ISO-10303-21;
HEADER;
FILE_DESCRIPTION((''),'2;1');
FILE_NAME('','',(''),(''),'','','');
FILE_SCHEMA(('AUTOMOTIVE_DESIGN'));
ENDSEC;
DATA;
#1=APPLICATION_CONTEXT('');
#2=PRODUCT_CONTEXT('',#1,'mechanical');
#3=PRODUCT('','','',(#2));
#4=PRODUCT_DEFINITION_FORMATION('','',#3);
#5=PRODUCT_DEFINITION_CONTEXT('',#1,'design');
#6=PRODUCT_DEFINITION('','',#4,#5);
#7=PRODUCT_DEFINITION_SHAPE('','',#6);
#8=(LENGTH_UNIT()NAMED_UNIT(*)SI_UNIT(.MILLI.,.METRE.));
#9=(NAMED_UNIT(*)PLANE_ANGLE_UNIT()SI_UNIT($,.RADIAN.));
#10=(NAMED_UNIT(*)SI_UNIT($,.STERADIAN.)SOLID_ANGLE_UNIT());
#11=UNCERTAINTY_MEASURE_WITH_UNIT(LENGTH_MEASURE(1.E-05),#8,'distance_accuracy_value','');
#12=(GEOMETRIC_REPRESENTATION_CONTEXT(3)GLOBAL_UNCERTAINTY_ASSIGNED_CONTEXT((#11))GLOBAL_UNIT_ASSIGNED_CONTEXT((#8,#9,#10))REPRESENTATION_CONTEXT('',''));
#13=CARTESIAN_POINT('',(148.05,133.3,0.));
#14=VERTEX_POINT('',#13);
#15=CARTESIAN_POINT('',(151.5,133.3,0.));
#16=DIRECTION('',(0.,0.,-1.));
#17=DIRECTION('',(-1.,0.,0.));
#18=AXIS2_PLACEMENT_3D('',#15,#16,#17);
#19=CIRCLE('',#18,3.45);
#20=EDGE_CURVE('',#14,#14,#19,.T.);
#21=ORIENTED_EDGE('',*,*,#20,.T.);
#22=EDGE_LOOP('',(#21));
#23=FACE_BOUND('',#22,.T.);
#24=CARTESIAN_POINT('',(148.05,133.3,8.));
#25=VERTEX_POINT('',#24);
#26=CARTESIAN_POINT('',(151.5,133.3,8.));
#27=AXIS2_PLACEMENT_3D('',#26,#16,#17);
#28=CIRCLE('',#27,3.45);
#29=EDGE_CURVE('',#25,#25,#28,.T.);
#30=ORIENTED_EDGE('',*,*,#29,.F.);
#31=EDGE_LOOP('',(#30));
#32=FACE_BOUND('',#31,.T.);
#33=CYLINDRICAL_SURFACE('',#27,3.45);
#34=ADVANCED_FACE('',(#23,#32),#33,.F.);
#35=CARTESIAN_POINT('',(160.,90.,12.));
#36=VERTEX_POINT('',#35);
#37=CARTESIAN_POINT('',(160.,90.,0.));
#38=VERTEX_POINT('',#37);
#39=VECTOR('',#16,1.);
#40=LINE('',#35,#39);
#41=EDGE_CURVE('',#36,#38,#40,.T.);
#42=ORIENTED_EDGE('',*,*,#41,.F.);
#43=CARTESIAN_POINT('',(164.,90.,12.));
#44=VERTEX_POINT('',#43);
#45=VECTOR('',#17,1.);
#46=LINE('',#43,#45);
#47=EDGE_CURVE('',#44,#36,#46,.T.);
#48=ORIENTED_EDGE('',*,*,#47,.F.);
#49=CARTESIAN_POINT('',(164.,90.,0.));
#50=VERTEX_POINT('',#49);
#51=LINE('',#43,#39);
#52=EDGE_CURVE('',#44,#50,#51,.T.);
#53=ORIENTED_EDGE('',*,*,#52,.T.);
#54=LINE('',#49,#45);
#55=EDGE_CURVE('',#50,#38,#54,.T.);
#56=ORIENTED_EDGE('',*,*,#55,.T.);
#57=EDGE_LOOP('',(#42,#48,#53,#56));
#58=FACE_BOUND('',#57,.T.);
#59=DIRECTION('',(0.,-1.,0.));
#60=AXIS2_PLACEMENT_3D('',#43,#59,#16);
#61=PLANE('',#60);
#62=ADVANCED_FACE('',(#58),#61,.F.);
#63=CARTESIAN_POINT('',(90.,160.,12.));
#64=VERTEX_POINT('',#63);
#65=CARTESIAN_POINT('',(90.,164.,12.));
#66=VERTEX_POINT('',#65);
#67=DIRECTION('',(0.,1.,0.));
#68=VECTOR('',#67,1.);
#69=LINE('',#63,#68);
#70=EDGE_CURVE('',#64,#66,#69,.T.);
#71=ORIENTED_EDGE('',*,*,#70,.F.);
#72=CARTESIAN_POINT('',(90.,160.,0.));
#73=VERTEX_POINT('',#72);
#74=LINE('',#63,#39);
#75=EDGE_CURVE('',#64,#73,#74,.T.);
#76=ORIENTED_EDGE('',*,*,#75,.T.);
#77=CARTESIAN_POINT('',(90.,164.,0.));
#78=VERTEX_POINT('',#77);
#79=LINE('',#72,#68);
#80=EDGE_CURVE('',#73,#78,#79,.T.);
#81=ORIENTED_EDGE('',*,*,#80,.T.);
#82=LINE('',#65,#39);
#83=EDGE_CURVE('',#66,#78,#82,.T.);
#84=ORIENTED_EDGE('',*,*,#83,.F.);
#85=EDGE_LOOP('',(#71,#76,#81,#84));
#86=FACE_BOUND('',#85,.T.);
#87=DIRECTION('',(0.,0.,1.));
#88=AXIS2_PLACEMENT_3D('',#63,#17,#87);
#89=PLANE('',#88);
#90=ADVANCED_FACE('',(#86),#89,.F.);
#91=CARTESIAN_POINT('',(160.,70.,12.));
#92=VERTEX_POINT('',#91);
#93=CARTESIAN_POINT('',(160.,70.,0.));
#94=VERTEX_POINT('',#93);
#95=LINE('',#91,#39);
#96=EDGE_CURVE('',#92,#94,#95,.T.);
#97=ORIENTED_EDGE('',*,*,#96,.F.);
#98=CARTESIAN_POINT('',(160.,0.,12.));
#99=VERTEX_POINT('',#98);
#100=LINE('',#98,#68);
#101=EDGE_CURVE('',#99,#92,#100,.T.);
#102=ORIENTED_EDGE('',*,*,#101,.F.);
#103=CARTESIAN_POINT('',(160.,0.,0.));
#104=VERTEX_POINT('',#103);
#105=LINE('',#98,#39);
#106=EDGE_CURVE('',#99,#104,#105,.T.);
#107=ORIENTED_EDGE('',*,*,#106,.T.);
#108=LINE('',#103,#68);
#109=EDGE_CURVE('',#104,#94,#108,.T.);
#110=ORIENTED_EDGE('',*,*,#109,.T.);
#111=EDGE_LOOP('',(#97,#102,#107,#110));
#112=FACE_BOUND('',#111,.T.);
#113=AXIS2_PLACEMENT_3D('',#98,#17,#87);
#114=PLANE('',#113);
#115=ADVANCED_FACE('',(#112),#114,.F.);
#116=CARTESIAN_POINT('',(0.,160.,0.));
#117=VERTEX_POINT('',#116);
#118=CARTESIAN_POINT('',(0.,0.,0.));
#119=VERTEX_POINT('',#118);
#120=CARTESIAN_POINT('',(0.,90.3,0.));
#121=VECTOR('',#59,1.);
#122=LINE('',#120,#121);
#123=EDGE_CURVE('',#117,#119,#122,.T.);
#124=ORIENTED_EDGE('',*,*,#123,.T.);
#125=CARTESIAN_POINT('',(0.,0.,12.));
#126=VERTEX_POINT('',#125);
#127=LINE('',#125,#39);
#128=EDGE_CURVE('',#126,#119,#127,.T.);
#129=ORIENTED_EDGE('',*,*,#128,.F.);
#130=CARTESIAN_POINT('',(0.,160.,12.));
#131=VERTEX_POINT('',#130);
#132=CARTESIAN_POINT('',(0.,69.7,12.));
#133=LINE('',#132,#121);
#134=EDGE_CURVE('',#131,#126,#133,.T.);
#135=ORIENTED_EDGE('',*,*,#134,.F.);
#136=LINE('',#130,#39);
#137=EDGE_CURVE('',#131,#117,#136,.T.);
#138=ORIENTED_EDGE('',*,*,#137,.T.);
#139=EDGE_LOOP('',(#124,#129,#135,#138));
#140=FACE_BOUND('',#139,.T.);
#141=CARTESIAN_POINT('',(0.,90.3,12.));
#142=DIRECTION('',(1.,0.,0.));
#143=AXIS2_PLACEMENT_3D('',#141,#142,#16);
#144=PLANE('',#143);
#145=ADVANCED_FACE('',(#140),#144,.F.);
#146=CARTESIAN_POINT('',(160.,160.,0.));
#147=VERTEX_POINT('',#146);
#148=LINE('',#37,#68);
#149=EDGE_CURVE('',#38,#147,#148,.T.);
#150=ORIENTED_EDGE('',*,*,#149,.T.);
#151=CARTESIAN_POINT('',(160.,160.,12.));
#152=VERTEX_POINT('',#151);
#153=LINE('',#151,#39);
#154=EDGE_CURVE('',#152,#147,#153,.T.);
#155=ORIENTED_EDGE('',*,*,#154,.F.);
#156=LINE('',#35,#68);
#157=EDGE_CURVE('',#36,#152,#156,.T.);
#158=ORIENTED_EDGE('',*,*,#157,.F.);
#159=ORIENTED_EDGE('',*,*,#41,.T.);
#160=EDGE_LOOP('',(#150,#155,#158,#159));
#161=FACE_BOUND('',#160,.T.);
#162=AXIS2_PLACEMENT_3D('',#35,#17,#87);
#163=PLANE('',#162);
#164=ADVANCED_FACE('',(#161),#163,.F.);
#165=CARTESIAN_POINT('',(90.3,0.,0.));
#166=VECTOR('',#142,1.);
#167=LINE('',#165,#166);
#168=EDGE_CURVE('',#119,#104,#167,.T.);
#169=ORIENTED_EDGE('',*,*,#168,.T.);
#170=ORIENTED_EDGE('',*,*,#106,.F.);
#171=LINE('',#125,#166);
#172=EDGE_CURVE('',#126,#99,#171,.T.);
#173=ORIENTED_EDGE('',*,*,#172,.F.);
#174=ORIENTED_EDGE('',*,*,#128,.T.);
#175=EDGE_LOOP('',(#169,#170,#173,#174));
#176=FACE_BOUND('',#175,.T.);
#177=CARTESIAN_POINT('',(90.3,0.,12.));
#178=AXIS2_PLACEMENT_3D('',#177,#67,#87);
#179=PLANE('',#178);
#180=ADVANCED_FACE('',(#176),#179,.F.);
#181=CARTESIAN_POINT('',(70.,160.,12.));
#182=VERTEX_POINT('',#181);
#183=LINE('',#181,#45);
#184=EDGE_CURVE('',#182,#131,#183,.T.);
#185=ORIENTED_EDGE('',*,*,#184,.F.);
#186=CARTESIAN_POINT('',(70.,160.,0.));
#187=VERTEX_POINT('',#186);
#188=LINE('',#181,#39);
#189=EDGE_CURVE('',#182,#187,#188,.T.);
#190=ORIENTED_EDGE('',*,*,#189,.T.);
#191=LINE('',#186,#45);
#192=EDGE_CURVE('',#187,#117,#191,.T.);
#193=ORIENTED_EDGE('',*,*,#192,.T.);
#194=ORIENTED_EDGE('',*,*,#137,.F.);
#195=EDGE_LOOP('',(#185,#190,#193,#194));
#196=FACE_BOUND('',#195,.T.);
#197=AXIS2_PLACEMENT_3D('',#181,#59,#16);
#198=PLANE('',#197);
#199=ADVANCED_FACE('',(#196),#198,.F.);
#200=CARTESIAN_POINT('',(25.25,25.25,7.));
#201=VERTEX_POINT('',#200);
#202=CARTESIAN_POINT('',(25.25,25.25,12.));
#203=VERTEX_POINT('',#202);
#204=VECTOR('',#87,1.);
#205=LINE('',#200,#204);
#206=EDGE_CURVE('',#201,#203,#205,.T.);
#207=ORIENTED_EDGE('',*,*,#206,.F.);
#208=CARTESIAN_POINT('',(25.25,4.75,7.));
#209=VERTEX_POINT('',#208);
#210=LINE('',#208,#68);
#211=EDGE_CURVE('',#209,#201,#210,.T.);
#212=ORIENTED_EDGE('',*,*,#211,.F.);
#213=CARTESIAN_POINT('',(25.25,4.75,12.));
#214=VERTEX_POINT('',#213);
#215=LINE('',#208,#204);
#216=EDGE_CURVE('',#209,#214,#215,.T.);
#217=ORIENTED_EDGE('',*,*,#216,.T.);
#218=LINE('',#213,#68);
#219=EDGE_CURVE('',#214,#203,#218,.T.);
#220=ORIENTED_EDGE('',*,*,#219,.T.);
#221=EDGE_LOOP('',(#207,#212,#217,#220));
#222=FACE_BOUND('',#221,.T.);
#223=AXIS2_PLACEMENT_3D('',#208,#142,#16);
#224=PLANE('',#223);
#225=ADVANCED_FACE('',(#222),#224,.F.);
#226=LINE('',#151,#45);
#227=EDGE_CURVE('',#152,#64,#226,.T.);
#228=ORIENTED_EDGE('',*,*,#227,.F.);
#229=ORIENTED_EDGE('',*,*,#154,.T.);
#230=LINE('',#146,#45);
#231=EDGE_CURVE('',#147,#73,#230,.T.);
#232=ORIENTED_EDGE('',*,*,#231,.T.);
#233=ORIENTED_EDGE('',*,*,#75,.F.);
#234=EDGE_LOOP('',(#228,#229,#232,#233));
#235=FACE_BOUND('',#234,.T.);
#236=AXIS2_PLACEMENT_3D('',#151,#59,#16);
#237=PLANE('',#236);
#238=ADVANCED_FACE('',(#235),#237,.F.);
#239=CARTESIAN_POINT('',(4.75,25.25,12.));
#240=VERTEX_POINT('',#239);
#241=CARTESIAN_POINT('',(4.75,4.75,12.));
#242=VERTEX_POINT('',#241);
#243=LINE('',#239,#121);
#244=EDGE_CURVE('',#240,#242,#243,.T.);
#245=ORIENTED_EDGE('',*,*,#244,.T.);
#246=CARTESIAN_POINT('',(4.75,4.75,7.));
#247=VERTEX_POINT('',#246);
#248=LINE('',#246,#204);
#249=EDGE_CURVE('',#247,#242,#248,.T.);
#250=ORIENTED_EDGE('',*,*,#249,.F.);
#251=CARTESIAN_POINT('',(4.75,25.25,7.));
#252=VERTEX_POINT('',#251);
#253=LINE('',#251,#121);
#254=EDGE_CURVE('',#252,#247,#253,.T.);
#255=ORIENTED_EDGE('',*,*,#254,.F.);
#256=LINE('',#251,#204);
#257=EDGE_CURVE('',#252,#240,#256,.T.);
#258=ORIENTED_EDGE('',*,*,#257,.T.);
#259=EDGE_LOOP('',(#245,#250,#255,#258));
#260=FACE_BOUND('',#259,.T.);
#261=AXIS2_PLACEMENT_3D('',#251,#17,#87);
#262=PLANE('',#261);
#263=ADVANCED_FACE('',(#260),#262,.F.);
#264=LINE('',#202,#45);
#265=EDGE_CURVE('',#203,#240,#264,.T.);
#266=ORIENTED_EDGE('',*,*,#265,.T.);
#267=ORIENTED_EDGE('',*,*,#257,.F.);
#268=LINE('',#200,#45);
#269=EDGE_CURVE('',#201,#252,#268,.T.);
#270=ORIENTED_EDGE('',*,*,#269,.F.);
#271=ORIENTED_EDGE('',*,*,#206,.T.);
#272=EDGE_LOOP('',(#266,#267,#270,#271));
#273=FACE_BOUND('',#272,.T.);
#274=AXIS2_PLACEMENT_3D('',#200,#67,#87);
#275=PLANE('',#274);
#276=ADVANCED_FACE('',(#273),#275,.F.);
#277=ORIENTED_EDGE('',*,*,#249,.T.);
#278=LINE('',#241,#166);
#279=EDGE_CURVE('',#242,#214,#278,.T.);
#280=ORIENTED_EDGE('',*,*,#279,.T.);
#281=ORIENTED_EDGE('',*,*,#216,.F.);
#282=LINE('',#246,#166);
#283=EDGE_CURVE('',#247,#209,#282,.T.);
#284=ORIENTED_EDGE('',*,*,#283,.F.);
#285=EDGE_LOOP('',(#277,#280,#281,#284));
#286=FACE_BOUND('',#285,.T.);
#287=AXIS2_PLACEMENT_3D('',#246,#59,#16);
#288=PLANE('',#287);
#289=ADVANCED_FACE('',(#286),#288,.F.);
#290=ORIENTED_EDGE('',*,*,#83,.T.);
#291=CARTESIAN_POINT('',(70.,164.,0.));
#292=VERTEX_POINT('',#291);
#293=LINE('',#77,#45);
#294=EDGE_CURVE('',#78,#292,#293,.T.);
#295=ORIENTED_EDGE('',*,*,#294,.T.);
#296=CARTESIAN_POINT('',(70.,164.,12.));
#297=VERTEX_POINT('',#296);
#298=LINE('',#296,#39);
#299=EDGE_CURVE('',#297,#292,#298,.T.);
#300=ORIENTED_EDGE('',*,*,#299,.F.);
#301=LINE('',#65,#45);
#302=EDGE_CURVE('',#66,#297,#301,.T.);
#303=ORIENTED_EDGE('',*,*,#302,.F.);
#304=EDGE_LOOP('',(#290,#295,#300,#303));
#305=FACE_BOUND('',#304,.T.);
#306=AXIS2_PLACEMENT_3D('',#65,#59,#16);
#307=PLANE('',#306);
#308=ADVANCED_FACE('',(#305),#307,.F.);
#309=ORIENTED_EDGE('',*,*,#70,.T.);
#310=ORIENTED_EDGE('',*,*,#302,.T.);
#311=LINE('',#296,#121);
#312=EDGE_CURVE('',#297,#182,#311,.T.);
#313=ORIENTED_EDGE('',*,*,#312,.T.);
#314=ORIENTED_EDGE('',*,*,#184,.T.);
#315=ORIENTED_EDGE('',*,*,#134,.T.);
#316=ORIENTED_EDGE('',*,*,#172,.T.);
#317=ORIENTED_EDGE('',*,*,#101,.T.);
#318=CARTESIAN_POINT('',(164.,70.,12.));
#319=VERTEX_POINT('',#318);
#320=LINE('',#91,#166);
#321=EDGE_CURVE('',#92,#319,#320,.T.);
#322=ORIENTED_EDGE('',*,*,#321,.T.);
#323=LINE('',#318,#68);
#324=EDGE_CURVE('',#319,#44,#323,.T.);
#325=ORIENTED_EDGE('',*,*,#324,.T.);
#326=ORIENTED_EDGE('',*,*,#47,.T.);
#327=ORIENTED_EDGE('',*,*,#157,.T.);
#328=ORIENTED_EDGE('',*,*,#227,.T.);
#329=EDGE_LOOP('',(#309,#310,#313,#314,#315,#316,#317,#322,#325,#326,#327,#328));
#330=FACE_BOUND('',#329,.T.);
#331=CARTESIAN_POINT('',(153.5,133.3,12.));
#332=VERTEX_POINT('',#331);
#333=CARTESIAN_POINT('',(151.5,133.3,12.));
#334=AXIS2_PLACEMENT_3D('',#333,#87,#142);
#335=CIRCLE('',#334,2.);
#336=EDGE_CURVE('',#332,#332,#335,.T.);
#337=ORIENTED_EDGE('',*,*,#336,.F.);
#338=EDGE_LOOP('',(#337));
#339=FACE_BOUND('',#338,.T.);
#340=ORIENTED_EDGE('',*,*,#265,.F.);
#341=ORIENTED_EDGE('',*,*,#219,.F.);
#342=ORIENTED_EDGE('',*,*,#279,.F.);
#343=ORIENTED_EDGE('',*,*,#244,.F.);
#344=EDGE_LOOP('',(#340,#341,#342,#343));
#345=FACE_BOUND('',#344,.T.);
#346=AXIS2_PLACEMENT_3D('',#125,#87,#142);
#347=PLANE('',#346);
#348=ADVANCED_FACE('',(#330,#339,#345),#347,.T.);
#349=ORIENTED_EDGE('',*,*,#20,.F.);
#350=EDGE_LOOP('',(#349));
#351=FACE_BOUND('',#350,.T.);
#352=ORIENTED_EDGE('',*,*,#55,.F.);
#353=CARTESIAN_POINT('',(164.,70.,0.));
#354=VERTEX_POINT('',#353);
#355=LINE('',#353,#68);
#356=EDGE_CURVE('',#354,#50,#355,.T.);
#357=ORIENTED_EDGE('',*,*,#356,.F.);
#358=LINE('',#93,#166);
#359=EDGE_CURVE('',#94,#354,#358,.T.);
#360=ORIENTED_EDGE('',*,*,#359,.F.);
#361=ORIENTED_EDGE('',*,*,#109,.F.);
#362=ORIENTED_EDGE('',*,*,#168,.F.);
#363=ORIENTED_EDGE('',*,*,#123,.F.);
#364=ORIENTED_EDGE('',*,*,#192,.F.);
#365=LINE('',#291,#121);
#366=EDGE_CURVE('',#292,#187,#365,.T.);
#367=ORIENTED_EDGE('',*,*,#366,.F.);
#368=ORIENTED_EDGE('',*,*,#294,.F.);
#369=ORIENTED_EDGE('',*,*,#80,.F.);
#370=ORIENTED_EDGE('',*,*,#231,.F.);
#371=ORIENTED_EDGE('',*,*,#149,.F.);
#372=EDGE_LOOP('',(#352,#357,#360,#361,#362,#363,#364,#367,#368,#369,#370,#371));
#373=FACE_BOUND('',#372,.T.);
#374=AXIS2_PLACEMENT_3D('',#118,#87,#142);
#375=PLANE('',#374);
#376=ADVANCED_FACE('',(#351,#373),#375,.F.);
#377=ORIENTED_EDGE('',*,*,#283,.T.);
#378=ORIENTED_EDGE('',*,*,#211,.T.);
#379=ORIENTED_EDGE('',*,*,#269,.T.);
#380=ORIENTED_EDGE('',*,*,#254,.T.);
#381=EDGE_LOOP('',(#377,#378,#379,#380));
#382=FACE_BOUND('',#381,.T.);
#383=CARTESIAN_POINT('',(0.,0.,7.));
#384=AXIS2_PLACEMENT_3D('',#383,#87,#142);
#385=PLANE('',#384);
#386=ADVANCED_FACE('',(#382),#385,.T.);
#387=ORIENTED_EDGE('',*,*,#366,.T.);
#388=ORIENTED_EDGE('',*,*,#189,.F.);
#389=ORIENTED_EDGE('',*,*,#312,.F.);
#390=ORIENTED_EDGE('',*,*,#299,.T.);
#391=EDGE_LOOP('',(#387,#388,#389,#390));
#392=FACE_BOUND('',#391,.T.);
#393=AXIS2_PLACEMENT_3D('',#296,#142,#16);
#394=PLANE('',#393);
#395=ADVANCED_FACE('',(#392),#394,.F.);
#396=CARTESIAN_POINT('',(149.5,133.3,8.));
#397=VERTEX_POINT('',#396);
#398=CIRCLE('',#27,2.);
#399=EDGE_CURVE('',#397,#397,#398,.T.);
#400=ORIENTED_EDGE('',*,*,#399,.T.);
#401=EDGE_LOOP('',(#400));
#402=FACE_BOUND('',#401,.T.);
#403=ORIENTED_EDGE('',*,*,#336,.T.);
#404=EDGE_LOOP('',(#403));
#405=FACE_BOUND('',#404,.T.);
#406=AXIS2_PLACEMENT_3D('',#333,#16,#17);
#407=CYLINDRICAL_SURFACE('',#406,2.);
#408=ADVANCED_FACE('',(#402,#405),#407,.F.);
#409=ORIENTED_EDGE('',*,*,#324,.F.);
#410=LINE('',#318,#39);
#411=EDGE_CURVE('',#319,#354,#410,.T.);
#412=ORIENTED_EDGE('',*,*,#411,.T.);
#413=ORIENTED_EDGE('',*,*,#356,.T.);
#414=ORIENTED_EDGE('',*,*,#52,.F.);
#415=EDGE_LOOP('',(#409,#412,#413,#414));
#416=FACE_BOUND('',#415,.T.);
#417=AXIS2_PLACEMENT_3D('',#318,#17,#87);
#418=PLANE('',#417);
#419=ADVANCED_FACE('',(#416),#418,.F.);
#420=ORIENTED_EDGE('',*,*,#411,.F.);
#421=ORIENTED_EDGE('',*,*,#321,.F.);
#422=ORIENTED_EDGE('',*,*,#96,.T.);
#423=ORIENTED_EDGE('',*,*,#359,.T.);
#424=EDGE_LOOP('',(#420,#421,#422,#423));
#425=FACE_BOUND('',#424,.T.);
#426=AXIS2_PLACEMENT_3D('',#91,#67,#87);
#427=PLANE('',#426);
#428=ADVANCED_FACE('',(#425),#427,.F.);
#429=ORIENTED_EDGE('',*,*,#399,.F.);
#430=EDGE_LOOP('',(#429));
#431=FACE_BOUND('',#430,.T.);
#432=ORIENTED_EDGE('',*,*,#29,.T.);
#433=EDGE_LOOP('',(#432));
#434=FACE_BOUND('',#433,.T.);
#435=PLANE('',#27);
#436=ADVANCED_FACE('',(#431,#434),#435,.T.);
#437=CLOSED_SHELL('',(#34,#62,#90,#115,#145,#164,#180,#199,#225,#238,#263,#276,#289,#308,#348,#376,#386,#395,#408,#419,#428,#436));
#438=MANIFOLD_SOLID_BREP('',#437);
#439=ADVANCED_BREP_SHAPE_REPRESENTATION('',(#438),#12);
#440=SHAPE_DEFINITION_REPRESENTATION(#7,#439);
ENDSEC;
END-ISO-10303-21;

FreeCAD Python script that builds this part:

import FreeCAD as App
import Part
import Sketcher


def add_polygon(sketch, points):
    """Adds a closed chain of lines whose ends are joined by coincident constraints."""
    first, n = sketch.GeometryCount, len(points)
    for a, b in zip(points, points[1:] + points[:1]):
        sketch.addGeometry(Part.LineSegment(App.Vector(*a, 0), App.Vector(*b, 0)), False)
    for i in range(n):
        sketch.addConstraint(Sketcher.Constraint("Coincident", first + i, 2, first + (i + 1) % n, 1))

doc = App.newDocument("Part")
body = doc.addObject("PartDesign::Body", "Body")

# Sketch on XY plane
sketch1 = body.newObject("Sketcher::SketchObject", "Sketch")
sketch1.AttachmentSupport = (doc.getObject("XY_Plane"), [""])
sketch1.MapMode = "FlatFace"
add_polygon(sketch1, [(0, 0), (160, 0), (160, 70), (164, 70), (164, 90), (160, 90), (160, 160), (90, 160), (90, 164), (70, 164), (70, 160), (0, 160)])  # lines 0-11
sketch1.addGeometry(Part.Circle(App.Vector(151.5, 133.3, 0), App.Vector(0, 0, 1), 2), False)  # 12
sketch1.addConstraint(Sketcher.Constraint("Horizontal", 0))
sketch1.addConstraint(Sketcher.Constraint("Vertical", 1))
sketch1.addConstraint(Sketcher.Constraint("Horizontal", 2))
sketch1.addConstraint(Sketcher.Constraint("Vertical", 3))
sketch1.addConstraint(Sketcher.Constraint("Horizontal", 4))
sketch1.addConstraint(Sketcher.Constraint("Vertical", 5))
sketch1.addConstraint(Sketcher.Constraint("Horizontal", 6))
sketch1.addConstraint(Sketcher.Constraint("Vertical", 7))
sketch1.addConstraint(Sketcher.Constraint("Horizontal", 8))
sketch1.addConstraint(Sketcher.Constraint("Vertical", 9))
sketch1.addConstraint(Sketcher.Constraint("Horizontal", 10))
sketch1.addConstraint(Sketcher.Constraint("Vertical", 11))
sketch1.addConstraint(Sketcher.Constraint("Coincident", 11, 2, -1, 1))
sketch1.addConstraint(Sketcher.Constraint("Horizontal", 6, 2, 9, 2))
sketch1.addConstraint(Sketcher.Constraint("Vertical", 1, 2, 4, 2))
sketch1.addConstraint(Sketcher.Constraint("Equal", 6, 10))
sketch1.addConstraint(Sketcher.Constraint("Equal", 10, 1))
sketch1.addConstraint(Sketcher.Constraint("Equal", 8, 3))
sketch1.addConstraint(Sketcher.Constraint("Equal", 1, 5))
sketch1.addConstraint(Sketcher.Constraint("Equal", 4, 7))
sketch1.addConstraint(Sketcher.Constraint("Diameter", 12, 4.0))
sketch1.addConstraint(Sketcher.Constraint("DistanceX", 0, 1, 0, 2, 160.0))
sketch1.addConstraint(Sketcher.Constraint("DistanceX", 2, 1, 2, 2, 4.0))
sketch1.addConstraint(Sketcher.Constraint("DistanceX", 6, 2, 6, 1, 70.0))
sketch1.addConstraint(Sketcher.Constraint("DistanceX", -1, 1, 12, 3, 151.5))
sketch1.addConstraint(Sketcher.Constraint("DistanceY", -1, 1, 12, 3, 133.3))
pad1 = body.newObject("PartDesign::Pad", "Pad")
pad1.Profile = sketch1
pad1.Length = 12

# Sketch on XY plane
sketch2 = body.newObject("Sketcher::SketchObject", "Sketch001")
sketch2.AttachmentSupport = (doc.getObject("XY_Plane"), [""])
sketch2.MapMode = "FlatFace"
sketch2.AttachmentOffset = App.Placement(App.Vector(0, 0, 12), App.Rotation())
add_polygon(sketch2, [(5, 25), (5, 5), (25, 5), (25, 25)])  # lines 0-3
sketch2.addConstraint(Sketcher.Constraint("Vertical", 0))
sketch2.addConstraint(Sketcher.Constraint("Horizontal", 1))
sketch2.addConstraint(Sketcher.Constraint("Vertical", 2))
sketch2.addConstraint(Sketcher.Constraint("Horizontal", 3))
sketch2.addConstraint(Sketcher.Constraint("Equal", 3, 0))
sketch2.addConstraint(Sketcher.Constraint("DistanceX", 1, 1, 1, 2, 20.5))
sketch2.addConstraint(Sketcher.Constraint("DistanceX", -1, 1, 0, 2, 4.75))
sketch2.addConstraint(Sketcher.Constraint("DistanceY", -1, 1, 0, 2, 4.75))
pocket1 = body.newObject("PartDesign::Pocket", "Pocket")
pocket1.Profile = sketch2
pocket1.Length = 5

# Sketch on XY plane
sketch3 = body.newObject("Sketcher::SketchObject", "Sketch002")
sketch3.AttachmentSupport = (doc.getObject("XY_Plane"), [""])
sketch3.MapMode = "FlatFace"
sketch3.addGeometry(Part.Circle(App.Vector(151.5, 133.3, 0), App.Vector(0, 0, 1), 3.5), False)
sketch3.addConstraint(Sketcher.Constraint("Diameter", 0, 6.9))
sketch3.addConstraint(Sketcher.Constraint("DistanceX", -1, 1, 0, 3, 151.5))
sketch3.addConstraint(Sketcher.Constraint("DistanceY", -1, 1, 0, 3, 133.3))
pocket2 = body.newObject("PartDesign::Pocket", "Pocket001")
pocket2.Profile = sketch3
pocket2.Length = 8
pocket2.Reversed = True

doc.recompute()
